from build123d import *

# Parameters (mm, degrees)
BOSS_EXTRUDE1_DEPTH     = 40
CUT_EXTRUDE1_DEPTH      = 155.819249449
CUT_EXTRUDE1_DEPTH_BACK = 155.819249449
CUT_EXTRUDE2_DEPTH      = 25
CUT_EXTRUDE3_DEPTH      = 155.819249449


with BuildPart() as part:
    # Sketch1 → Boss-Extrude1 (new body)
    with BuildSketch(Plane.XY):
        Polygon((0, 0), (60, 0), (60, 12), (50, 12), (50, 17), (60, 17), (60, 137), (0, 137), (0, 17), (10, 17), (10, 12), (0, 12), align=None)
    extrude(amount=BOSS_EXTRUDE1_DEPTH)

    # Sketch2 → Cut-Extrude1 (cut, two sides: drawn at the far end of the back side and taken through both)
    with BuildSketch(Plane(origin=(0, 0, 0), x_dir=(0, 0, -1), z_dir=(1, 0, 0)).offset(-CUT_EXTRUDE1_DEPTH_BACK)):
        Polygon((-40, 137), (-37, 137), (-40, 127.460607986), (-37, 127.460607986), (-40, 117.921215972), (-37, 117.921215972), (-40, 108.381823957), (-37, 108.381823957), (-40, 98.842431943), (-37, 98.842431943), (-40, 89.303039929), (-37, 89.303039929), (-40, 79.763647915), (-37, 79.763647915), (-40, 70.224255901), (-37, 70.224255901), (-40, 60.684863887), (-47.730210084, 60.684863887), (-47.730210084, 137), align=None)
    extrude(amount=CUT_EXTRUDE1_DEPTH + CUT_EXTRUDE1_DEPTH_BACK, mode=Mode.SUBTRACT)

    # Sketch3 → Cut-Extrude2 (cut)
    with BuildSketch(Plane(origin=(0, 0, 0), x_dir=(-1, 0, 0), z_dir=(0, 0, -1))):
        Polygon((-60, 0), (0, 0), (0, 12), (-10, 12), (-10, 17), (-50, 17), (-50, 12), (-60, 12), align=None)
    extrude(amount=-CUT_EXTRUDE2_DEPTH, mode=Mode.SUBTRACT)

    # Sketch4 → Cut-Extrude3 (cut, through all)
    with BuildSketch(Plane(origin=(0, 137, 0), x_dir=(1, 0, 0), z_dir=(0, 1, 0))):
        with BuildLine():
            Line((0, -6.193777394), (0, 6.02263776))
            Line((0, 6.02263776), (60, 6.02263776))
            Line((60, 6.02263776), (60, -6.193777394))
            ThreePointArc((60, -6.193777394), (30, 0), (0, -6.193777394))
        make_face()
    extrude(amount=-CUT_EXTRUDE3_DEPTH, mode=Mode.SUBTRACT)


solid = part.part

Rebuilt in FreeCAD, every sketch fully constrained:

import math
import FreeCAD as App
import Part
import Sketcher

V = App.Vector

doc = App.newDocument("Part")
params = doc.addObject("Spreadsheet::Sheet", "Params")
for row, (alias, value) in enumerate([
    ("sketch1_width", "60 mm"),
    ("sketch1_width2", "10 mm"),
    ("sketch1_height", "12 mm"),
    ("sketch1_height2", "5 mm"),
    ("sketch1_height3", "120 mm"),
    ("pad1_length", "40 mm"),
    ("sketch2_height", "3 mm"),
    ("sketch2_length", "10 mm"),
    ("sketch3_width", "60 mm"),
    ("sketch3_width2", "10 mm"),
    ("sketch3_height", "12 mm"),
    ("sketch3_height2", "5 mm"),
    ("pocket2_length", "25 mm"),
    ("sketch4_width", "60 mm"),
], start=1):
    params.set(f"A{row}", alias)
    params.set(f"B{row}", "=" + value)
    params.setAlias(f"B{row}", alias)

body = doc.addObject("PartDesign::Body", "Body")

# Sketch on XY plane
sketch1 = body.newObject("Sketcher::SketchObject", "Sketch")
sketch1.AttachmentSupport = (doc.getObject("XY_Plane"), [""])
sketch1.MapMode = "FlatFace"
sketch1.addGeometry([
    Part.LineSegment(V(0, 0, 0), V(60, 0, 0)),  # 0
    Part.LineSegment(V(60, 0, 0), V(60, 12, 0)),  # 1
    Part.LineSegment(V(60, 12, 0), V(50, 12, 0)),  # 2
    Part.LineSegment(V(50, 12, 0), V(50, 17, 0)),  # 3
    Part.LineSegment(V(50, 17, 0), V(60, 17, 0)),  # 4
    Part.LineSegment(V(60, 17, 0), V(60, 137, 0)),  # 5
    Part.LineSegment(V(60, 137, 0), V(0, 137, 0)),  # 6
    Part.LineSegment(V(0, 137, 0), V(0, 17, 0)),  # 7
    Part.LineSegment(V(0, 17, 0), V(10, 17, 0)),  # 8
    Part.LineSegment(V(10, 17, 0), V(10, 12, 0)),  # 9
    Part.LineSegment(V(10, 12, 0), V(0, 12, 0)),  # 10
    Part.LineSegment(V(0, 12, 0), V(0, 0, 0)),  # 11
], False)
sketch1.addConstraint([
    Sketcher.Constraint("Coincident", 0, 2, 1, 1),
    Sketcher.Constraint("Coincident", 1, 2, 2, 1),
    Sketcher.Constraint("Coincident", 2, 2, 3, 1),
    Sketcher.Constraint("Coincident", 3, 2, 4, 1),
    Sketcher.Constraint("Coincident", 4, 2, 5, 1),
    Sketcher.Constraint("Coincident", 5, 2, 6, 1),
    Sketcher.Constraint("Coincident", 6, 2, 7, 1),
    Sketcher.Constraint("Coincident", 7, 2, 8, 1),
    Sketcher.Constraint("Coincident", 8, 2, 9, 1),
    Sketcher.Constraint("Coincident", 9, 2, 10, 1),
    Sketcher.Constraint("Coincident", 10, 2, 11, 1),
    Sketcher.Constraint("Coincident", 11, 2, 0, 1),
    Sketcher.Constraint("Horizontal", 0),
    Sketcher.Constraint("Vertical", 1),
    Sketcher.Constraint("Horizontal", 2),
    Sketcher.Constraint("Vertical", 3),
    Sketcher.Constraint("Horizontal", 4),
    Sketcher.Constraint("Vertical", 5),
    Sketcher.Constraint("Horizontal", 6),
    Sketcher.Constraint("Vertical", 7),
    Sketcher.Constraint("Horizontal", 8),
    Sketcher.Constraint("Vertical", 9),
    Sketcher.Constraint("Horizontal", 10),
    Sketcher.Constraint("Vertical", 11),
    Sketcher.Constraint("Coincident", 11, 2, -1, 1),
    Sketcher.Constraint("PointOnObject", 6, 2, -2),
    Sketcher.Constraint("Horizontal", 4, 2, 7, 2),
    Sketcher.Constraint("Horizontal", 2, 2, 9, 2),
    Sketcher.Constraint("Vertical", 1, 2, 4, 2),
    Sketcher.Constraint("Equal", 4, 8),
    Sketcher.Constraint("DistanceX", 0, 1, 0, 2, 60.0),
    Sketcher.Constraint("DistanceX", 2, 2, 2, 1, 10.0),
    Sketcher.Constraint("DistanceY", 1, 1, 1, 2, 12.0),
    Sketcher.Constraint("DistanceY", 3, 1, 3, 2, 5.0),
    Sketcher.Constraint("DistanceY", 5, 1, 5, 2, 120.0),
])
sketch1.setExpression("Constraints[30]", "Params.sketch1_width")
sketch1.setExpression("Constraints[31]", "Params.sketch1_width2")
sketch1.setExpression("Constraints[32]", "Params.sketch1_height")
sketch1.setExpression("Constraints[33]", "Params.sketch1_height2")
sketch1.setExpression("Constraints[34]", "Params.sketch1_height3")
pad1 = body.newObject("PartDesign::Pad", "Pad")
pad1.Profile = sketch1
pad1.setExpression("Length", "Params.pad1_length")

# Sketch on YZ plane
sketch2 = body.newObject("Sketcher::SketchObject", "Sketch001")
sketch2.AttachmentSupport = (doc.getObject("YZ_Plane"), [""])
sketch2.MapMode = "FlatFace"
sketch2.addGeometry([
    Part.LineSegment(V(137, 37, 0), V(137, 47.73021, 0)),  # 0
    Part.LineSegment(V(137, 47.73021, 0), V(60.684864, 47.73021, 0)),  # 1
    Part.LineSegment(V(60.684864, 47.73021, 0), V(60.684864, 40, 0)),  # 2
    Part.LineSegment(V(60.684864, 40, 0), V(70.224256, 37, 0)),  # 3
    Part.LineSegment(V(70.224256, 37, 0), V(70.224256, 40, 0)),  # 4
    Part.LineSegment(V(70.224256, 40, 0), V(79.763648, 37, 0)),  # 5
    Part.LineSegment(V(79.763648, 37, 0), V(79.763648, 40, 0)),  # 6
    Part.LineSegment(V(79.763648, 40, 0), V(89.30304, 37, 0)),  # 7
    Part.LineSegment(V(89.30304, 37, 0), V(89.30304, 40, 0)),  # 8
    Part.LineSegment(V(89.30304, 40, 0), V(98.842432, 37, 0)),  # 9
    Part.LineSegment(V(98.842432, 37, 0), V(98.842432, 40, 0)),  # 10
    Part.LineSegment(V(98.842432, 40, 0), V(108.381824, 37, 0)),  # 11
    Part.LineSegment(V(108.381824, 37, 0), V(108.381824, 40, 0)),  # 12
    Part.LineSegment(V(108.381824, 40, 0), V(117.921216, 37, 0)),  # 13
    Part.LineSegment(V(117.921216, 37, 0), V(117.921216, 40, 0)),  # 14
    Part.LineSegment(V(117.921216, 40, 0), V(127.460608, 37, 0)),  # 15
    Part.LineSegment(V(127.460608, 37, 0), V(127.460608, 40, 0)),  # 16
    Part.LineSegment(V(127.460608, 40, 0), V(137, 37, 0)),  # 17
], False)
sketch2.addConstraint([
    Sketcher.Constraint("Coincident", 0, 2, 1, 1),
    Sketcher.Constraint("Coincident", 1, 2, 2, 1),
    Sketcher.Constraint("Coincident", 2, 2, 3, 1),
    Sketcher.Constraint("Coincident", 3, 2, 4, 1),
    Sketcher.Constraint("Coincident", 4, 2, 5, 1),
    Sketcher.Constraint("Coincident", 5, 2, 6, 1),
    Sketcher.Constraint("Coincident", 6, 2, 7, 1),
    Sketcher.Constraint("Coincident", 7, 2, 8, 1),
    Sketcher.Constraint("Coincident", 8, 2, 9, 1),
    Sketcher.Constraint("Coincident", 9, 2, 10, 1),
    Sketcher.Constraint("Coincident", 10, 2, 11, 1),
    Sketcher.Constraint("Coincident", 11, 2, 12, 1),
    Sketcher.Constraint("Coincident", 12, 2, 13, 1),
    Sketcher.Constraint("Coincident", 13, 2, 14, 1),
    Sketcher.Constraint("Coincident", 14, 2, 15, 1),
    Sketcher.Constraint("Coincident", 15, 2, 16, 1),
    Sketcher.Constraint("Coincident", 16, 2, 17, 1),
    Sketcher.Constraint("Coincident", 17, 2, 0, 1),
    Sketcher.Constraint("Vertical", 0),
    Sketcher.Constraint("Horizontal", 1),
    Sketcher.Constraint("Vertical", 2),
    Sketcher.Constraint("Vertical", 4),
    Sketcher.Constraint("Vertical", 6),
    Sketcher.Constraint("Vertical", 8),
    Sketcher.Constraint("Vertical", 10),
    Sketcher.Constraint("Vertical", 12),
    Sketcher.Constraint("Vertical", 14),
    Sketcher.Constraint("Vertical", 16),
    Sketcher.Constraint("Parallel", 3, 5),
    Sketcher.Constraint("Parallel", 5, 7),
    Sketcher.Constraint("Parallel", 7, 9),
    Sketcher.Constraint("Parallel", 9, 11),
    Sketcher.Constraint("Parallel", 11, 13),
    Sketcher.Constraint("Parallel", 13, 15),
    Sketcher.Constraint("Parallel", 15, 17),
    Sketcher.Constraint("Horizontal", 2, 2, 4, 2),
    Sketcher.Constraint("Horizontal", 3, 2, 5, 2),
    Sketcher.Constraint("Horizontal", 4, 2, 6, 2),
    Sketcher.Constraint("Horizontal", 5, 2, 7, 2),
    Sketcher.Constraint("Horizontal", 6, 2, 8, 2),
    Sketcher.Constraint("Horizontal", 7, 2, 9, 2),
    Sketcher.Constraint("Horizontal", 8, 2, 10, 2),
    Sketcher.Constraint("Horizontal", 9, 2, 11, 2),
    Sketcher.Constraint("Horizontal", 10, 2, 12, 2),
    Sketcher.Constraint("Horizontal", 11, 2, 13, 2),
    Sketcher.Constraint("Horizontal", 12, 2, 14, 2),
    Sketcher.Constraint("Horizontal", 13, 2, 15, 2),
    Sketcher.Constraint("Horizontal", 14, 2, 16, 2),
    Sketcher.Constraint("Horizontal", 15, 2, 17, 2),
    Sketcher.Constraint("DistanceY", 4, 1, 4, 2, 3.0),
    Sketcher.Constraint("Distance", 3, 10.0),
    Sketcher.Constraint("DistanceX", -1, 1, 0, 2, 137.0),
    Sketcher.Constraint("DistanceY", -1, 1, 2, 2, 40.0),
    Sketcher.Constraint("DistanceY", 0, 1, 0, 2, 10.73021),
])
sketch2.setExpression("Constraints[49]", "Params.sketch2_height")
sketch2.setExpression("Constraints[50]", "Params.sketch2_length")
pocket1 = body.newObject("PartDesign::Pocket", "Pocket")
pocket1.Profile = sketch2
pocket1.Type = "ThroughAll"
pocket1.Midplane = True

# Sketch on XY plane
sketch3 = body.newObject("Sketcher::SketchObject", "Sketch002")
sketch3.AttachmentSupport = (doc.getObject("XY_Plane"), [""])
sketch3.MapMode = "FlatFace"
sketch3.addGeometry([
    Part.LineSegment(V(60, 0, 0), V(0, 0, 0)),  # 0
    Part.LineSegment(V(0, 0, 0), V(0, 12, 0)),  # 1
    Part.LineSegment(V(0, 12, 0), V(10, 12, 0)),  # 2
    Part.LineSegment(V(10, 12, 0), V(10, 17, 0)),  # 3
    Part.LineSegment(V(10, 17, 0), V(50, 17, 0)),  # 4
    Part.LineSegment(V(50, 17, 0), V(50, 12, 0)),  # 5
    Part.LineSegment(V(50, 12, 0), V(60, 12, 0)),  # 6
    Part.LineSegment(V(60, 12, 0), V(60, 0, 0)),  # 7
], False)
sketch3.addConstraint([
    Sketcher.Constraint("Coincident", 0, 2, 1, 1),
    Sketcher.Constraint("Coincident", 1, 2, 2, 1),
    Sketcher.Constraint("Coincident", 2, 2, 3, 1),
    Sketcher.Constraint("Coincident", 3, 2, 4, 1),
    Sketcher.Constraint("Coincident", 4, 2, 5, 1),
    Sketcher.Constraint("Coincident", 5, 2, 6, 1),
    Sketcher.Constraint("Coincident", 6, 2, 7, 1),
    Sketcher.Constraint("Coincident", 7, 2, 0, 1),
    Sketcher.Constraint("Horizontal", 0),
    Sketcher.Constraint("Vertical", 1),
    Sketcher.Constraint("Horizontal", 2),
    Sketcher.Constraint("Vertical", 3),
    Sketcher.Constraint("Horizontal", 4),
    Sketcher.Constraint("Vertical", 5),
    Sketcher.Constraint("Horizontal", 6),
    Sketcher.Constraint("Vertical", 7),
    Sketcher.Constraint("Coincident", 0, 2, -1, 1),
    Sketcher.Constraint("Horizontal", 2, 2, 5, 2),
    Sketcher.Constraint("Equal", 2, 6),
    Sketcher.Constraint("DistanceX", 0, 2, 0, 1, 60.0),
    Sketcher.Constraint("DistanceX", 2, 1, 2, 2, 10.0),
    Sketcher.Constraint("DistanceY", 1, 1, 1, 2, 12.0),
    Sketcher.Constraint("DistanceY", 3, 1, 3, 2, 5.0),
])
sketch3.setExpression("Constraints[19]", "Params.sketch3_width")
sketch3.setExpression("Constraints[20]", "Params.sketch3_width2")
sketch3.setExpression("Constraints[21]", "Params.sketch3_height")
sketch3.setExpression("Constraints[22]", "Params.sketch3_height2")
pocket2 = body.newObject("PartDesign::Pocket", "Pocket001")
pocket2.Profile = sketch3
pocket2.setExpression("Length", "Params.pocket2_length")
pocket2.Reversed = True

# Sketch on XZ plane
sketch4 = body.newObject("Sketcher::SketchObject", "Sketch003")
sketch4.AttachmentSupport = (doc.getObject("XZ_Plane"), [""])
sketch4.MapMode = "FlatFace"
sketch4.AttachmentOffset = App.Placement(V(0, 0, -137), App.Rotation())
sketch4.addGeometry([
    Part.LineSegment(V(0, -6.022638, 0), V(0, 6.193777, 0)),
    Part.ArcOfCircle(Part.Circle(V(30, 75.750452, 0), V(0, 0, 1), 75.750452), math.radians(-113.33068), math.radians(-66.66932)),
    Part.LineSegment(V(60, 6.193777, 0), V(60, -6.022638, 0)),
    Part.LineSegment(V(60, -6.022638, 0), V(0, -6.022638, 0)),
], False)
sketch4.addConstraint([
    Sketcher.Constraint("Coincident", 0, 2, 1, 1),
    Sketcher.Constraint("Coincident", 1, 2, 2, 1),
    Sketcher.Constraint("Coincident", 2, 2, 3, 1),
    Sketcher.Constraint("Coincident", 3, 2, 0, 1),
    Sketcher.Constraint("Vertical", 0),
    Sketcher.Constraint("Vertical", 2),
    Sketcher.Constraint("Horizontal", 3),
    Sketcher.Constraint("PointOnObject", 0, 2, -2),
    Sketcher.Constraint("Horizontal", 0, 2, 1, 2),
    Sketcher.Constraint("DistanceX", 3, 2, 3, 1, 60.0),
    Sketcher.Constraint("Radius", 1, 75.750452),
    Sketcher.Constraint("DistanceY", 0, 1, 0, 2, 12.216415),
    Sketcher.Constraint("DistanceY", -1, 1, 1, 3, 75.750452),
])
sketch4.setExpression("Constraints[9]", "Params.sketch4_width")
pocket3 = body.newObject("PartDesign::Pocket", "Pocket002")
pocket3.Profile = sketch4
pocket3.Type = "ThroughAll"
pocket3.Reversed = True

doc.recompute()
